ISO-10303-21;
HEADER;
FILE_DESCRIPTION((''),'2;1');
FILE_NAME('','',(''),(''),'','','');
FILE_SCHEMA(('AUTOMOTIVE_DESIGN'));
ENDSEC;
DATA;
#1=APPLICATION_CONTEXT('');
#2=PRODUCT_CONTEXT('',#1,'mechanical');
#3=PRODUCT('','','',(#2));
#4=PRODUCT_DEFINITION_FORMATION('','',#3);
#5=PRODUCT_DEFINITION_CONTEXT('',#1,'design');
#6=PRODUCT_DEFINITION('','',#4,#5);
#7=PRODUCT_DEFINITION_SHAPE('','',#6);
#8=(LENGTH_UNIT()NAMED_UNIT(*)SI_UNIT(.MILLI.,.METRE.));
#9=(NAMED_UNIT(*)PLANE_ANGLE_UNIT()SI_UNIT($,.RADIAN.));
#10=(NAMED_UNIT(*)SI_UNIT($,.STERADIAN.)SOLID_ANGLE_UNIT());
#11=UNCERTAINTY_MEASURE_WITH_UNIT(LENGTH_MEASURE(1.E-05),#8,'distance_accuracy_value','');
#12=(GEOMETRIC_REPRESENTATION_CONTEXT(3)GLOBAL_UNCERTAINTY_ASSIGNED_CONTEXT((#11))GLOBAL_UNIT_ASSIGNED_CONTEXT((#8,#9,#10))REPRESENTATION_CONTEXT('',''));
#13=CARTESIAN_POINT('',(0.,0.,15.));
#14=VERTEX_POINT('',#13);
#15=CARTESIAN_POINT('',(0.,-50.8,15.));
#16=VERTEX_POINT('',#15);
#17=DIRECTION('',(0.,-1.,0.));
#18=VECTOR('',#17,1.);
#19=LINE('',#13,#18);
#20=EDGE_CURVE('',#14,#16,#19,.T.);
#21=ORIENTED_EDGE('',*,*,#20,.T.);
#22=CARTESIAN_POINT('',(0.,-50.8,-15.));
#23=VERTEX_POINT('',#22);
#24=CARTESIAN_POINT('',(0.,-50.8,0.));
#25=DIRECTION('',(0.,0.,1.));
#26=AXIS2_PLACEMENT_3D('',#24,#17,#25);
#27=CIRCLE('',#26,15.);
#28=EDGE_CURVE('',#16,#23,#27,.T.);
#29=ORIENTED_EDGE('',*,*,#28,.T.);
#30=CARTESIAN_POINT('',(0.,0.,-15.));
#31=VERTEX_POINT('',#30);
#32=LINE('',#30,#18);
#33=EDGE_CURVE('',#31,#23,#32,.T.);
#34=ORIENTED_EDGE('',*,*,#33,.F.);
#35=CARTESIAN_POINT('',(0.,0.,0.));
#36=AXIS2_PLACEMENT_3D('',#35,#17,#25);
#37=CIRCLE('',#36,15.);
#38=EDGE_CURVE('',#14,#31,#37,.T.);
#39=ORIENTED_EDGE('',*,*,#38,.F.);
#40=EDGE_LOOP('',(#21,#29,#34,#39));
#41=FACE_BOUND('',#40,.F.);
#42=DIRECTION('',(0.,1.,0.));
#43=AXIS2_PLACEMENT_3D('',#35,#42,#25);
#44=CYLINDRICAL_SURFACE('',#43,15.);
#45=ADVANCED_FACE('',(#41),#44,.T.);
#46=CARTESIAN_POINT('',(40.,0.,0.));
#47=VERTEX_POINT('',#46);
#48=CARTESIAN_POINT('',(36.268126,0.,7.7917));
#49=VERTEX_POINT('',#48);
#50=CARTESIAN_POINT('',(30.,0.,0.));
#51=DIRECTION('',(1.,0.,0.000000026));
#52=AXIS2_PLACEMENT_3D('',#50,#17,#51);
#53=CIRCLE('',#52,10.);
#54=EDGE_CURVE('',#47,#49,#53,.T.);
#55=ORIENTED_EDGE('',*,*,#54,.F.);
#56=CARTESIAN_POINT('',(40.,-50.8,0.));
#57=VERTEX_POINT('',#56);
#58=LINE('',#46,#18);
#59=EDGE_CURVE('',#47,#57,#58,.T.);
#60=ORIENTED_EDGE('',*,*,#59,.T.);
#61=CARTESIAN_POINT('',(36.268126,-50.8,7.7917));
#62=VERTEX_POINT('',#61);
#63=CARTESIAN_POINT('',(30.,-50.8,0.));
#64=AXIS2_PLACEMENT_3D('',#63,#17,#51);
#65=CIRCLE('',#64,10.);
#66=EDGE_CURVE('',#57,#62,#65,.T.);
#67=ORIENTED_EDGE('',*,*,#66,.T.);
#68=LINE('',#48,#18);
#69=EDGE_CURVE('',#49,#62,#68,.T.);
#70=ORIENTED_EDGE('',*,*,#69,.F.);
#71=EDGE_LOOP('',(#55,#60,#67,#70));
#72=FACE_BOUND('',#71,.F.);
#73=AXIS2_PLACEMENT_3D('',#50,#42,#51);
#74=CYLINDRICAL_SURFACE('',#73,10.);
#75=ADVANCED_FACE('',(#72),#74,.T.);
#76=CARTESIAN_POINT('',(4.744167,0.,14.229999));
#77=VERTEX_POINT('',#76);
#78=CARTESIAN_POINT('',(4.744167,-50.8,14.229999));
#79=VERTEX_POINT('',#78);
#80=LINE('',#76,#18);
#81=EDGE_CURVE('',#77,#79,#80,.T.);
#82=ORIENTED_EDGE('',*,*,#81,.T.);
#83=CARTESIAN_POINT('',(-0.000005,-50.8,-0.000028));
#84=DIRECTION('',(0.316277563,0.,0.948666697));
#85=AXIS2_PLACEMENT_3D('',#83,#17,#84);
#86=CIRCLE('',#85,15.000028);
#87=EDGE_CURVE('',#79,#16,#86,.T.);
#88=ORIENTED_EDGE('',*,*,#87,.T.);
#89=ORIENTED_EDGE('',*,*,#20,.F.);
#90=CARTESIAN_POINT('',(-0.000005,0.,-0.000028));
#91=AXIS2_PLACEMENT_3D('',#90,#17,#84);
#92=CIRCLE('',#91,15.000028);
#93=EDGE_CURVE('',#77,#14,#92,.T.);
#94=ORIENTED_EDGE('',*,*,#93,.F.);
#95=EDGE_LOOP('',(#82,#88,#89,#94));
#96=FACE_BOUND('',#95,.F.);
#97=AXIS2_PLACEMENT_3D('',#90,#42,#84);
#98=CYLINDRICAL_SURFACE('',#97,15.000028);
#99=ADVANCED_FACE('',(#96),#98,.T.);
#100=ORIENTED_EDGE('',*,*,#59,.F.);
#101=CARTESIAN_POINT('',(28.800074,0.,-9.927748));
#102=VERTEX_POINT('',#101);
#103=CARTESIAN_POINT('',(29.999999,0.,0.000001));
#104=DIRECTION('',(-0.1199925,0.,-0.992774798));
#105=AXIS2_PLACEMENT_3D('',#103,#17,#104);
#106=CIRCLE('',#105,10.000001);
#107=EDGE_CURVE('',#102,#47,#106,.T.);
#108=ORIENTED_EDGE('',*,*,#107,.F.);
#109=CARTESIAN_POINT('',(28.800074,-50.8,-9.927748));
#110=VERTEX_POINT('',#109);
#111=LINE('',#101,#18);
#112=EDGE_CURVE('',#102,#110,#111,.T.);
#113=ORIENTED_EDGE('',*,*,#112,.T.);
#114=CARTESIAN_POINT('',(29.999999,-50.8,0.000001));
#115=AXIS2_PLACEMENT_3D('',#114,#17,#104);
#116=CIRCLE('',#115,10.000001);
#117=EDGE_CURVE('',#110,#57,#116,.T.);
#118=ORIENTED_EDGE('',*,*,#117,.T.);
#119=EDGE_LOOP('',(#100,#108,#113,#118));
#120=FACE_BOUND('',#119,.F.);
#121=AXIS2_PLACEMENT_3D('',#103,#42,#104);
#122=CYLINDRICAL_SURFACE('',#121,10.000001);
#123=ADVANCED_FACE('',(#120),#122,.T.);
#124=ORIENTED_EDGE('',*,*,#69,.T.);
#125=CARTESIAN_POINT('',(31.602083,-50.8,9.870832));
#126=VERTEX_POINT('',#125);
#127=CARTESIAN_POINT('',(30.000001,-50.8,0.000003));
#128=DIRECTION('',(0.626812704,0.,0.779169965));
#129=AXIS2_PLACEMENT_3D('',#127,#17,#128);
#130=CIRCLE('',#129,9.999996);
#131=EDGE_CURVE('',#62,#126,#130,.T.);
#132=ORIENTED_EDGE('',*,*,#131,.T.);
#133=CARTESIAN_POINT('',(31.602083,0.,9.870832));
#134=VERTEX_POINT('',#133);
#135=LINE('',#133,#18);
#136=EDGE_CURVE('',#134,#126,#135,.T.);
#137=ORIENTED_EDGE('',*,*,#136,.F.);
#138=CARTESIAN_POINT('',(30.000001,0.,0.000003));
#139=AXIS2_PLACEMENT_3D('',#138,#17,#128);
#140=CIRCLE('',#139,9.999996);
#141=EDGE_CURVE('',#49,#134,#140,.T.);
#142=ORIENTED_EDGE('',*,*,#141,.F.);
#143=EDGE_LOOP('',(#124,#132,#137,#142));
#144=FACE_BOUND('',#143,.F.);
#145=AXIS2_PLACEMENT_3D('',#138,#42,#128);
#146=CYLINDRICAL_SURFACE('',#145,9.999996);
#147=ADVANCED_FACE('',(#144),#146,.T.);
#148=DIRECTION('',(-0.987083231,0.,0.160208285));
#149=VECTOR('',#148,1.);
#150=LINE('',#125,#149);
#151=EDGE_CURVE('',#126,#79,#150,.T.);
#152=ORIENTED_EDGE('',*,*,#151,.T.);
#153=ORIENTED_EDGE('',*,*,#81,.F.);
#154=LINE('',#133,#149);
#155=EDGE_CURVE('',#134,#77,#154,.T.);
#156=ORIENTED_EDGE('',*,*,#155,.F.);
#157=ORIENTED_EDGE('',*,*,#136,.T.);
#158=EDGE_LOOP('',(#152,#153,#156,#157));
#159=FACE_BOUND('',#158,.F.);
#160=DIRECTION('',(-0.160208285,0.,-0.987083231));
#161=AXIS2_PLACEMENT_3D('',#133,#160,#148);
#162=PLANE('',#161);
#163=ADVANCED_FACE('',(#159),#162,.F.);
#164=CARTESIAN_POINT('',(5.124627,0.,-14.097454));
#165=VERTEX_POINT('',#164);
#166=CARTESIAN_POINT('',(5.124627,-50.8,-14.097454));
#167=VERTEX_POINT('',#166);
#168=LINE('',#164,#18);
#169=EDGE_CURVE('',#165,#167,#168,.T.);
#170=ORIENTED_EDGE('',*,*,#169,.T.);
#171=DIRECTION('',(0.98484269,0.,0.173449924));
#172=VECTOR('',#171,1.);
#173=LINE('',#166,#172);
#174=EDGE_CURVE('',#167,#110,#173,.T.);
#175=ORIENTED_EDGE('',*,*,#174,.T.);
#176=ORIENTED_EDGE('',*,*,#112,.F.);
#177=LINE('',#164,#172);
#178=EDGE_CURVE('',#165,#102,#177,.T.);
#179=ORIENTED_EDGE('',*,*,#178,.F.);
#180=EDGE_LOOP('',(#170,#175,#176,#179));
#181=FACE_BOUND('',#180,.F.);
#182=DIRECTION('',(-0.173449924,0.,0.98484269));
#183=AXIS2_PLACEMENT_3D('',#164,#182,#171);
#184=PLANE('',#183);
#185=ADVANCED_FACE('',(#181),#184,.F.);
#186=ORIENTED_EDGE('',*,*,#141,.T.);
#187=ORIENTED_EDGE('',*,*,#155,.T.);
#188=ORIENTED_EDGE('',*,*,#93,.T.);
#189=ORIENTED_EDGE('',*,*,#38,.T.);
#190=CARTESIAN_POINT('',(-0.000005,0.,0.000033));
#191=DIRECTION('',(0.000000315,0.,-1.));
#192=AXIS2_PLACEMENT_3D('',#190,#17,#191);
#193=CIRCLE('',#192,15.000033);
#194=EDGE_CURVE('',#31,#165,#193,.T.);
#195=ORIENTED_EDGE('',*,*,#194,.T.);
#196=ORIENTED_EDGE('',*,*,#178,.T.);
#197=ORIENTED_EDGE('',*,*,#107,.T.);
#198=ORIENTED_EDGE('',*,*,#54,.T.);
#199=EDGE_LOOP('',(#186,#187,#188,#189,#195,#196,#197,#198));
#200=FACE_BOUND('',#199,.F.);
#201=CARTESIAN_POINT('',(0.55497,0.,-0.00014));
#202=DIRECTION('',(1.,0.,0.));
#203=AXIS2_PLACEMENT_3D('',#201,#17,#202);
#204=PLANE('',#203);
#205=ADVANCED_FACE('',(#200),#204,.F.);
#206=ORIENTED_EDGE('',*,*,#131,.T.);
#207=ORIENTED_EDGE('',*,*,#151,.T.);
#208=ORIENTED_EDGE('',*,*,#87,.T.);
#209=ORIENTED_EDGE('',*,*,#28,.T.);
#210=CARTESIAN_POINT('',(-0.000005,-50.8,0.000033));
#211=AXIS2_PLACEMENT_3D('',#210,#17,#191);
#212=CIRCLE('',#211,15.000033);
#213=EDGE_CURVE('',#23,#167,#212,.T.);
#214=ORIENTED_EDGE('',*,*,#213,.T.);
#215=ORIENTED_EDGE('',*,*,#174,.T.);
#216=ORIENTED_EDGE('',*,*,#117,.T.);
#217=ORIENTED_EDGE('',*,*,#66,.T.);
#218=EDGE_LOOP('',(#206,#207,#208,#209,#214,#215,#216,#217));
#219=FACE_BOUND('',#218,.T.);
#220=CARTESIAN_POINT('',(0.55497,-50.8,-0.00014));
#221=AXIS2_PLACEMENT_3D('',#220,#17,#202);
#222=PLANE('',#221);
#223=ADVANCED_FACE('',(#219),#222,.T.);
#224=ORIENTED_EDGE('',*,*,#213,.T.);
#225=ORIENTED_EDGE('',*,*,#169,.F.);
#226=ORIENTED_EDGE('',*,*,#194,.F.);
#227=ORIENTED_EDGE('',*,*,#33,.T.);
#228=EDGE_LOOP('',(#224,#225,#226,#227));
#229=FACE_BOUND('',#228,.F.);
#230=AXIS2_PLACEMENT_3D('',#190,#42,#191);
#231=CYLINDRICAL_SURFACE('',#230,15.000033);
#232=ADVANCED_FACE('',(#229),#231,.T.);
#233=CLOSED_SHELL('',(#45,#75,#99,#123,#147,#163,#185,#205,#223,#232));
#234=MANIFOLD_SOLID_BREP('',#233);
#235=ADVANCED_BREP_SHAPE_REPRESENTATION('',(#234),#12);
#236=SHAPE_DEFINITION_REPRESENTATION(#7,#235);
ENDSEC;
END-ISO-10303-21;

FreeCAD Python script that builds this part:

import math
import FreeCAD as App
import Part
import Sketcher
from FreeCAD import Vector
Q = App.Units.Quantity

doc = App.newDocument("Part")
body = doc.addObject("PartDesign::Body", "Body")

# Sketch on XZ plane
sketch1 = doc.addObject("Sketcher::SketchObject", "Sketch")
body.addObject(sketch1)
sketch1.AttachmentSupport = (doc.XZ_Plane, [""])
sketch1.MapMode = "FlatFace"
sketch1.addGeometry([
    Part.ArcOfCircle(Part.Circle(Vector(0, 0, 0), Vector(0, 0, 1), 15), math.radians(90), math.radians(270)),  # 0
    Part.ArcOfCircle(Part.Circle(Vector(0, 0, 0), Vector(0, 0, 1), 15), math.radians(-90), math.radians(-70.02)),  # 1
    Part.LineSegment(Vector(5.1, -14.1, 0), Vector(28.8, -9.9, 0)),  # 2
    Part.ArcOfCircle(Part.Circle(Vector(30, 0, 0), Vector(0, 0, 1), 10), math.radians(-97), math.radians(0)),  # 3
    Part.ArcOfCircle(Part.Circle(Vector(30, 0, 0), Vector(0, 0, 1), 10), math.radians(0), math.radians(51)),  # 4
    Part.ArcOfCircle(Part.Circle(Vector(30, 0, 0), Vector(0, 0, 1), 10), math.radians(51), math.radians(81)),  # 5
    Part.LineSegment(Vector(31.6, 9.9, 0), Vector(4.7, 14.2, 0)),  # 6
    Part.ArcOfCircle(Part.Circle(Vector(0, 0, 0), Vector(0, 0, 1), 15), math.radians(71.56), math.radians(90)),  # 7
], False)
sketch1.addConstraint([
    Sketcher.Constraint("Tangent", 0, 2, 1, 1),
    Sketcher.Constraint("Coincident", 1, 2, 2, 1),
    Sketcher.Constraint("Coincident", 2, 2, 3, 1),
    Sketcher.Constraint("Tangent", 3, 2, 4, 1),
    Sketcher.Constraint("Tangent", 4, 2, 5, 1),
    Sketcher.Constraint("Tangent", 5, 2, 6, 1),
    Sketcher.Constraint("Coincident", 6, 2, 7, 1),
    Sketcher.Constraint("Tangent", 7, 2, 0, 1),
    Sketcher.Constraint("Coincident", 0, 3, -1, 1),
    Sketcher.Constraint("Coincident", 5, 3, 3, 3),
    Sketcher.Constraint("PointOnObject", 3, 3, -1),
    Sketcher.Constraint("PointOnObject", 0, 2, -2),
    Sketcher.Constraint("PointOnObject", 3, 2, -1),
    Sketcher.Constraint("PointOnObject", 7, 2, -2),
    Sketcher.Constraint("Radius", 0, Q("15 mm")),
    Sketcher.Constraint("Radius", 3, Q("10.000001 mm")),
    Sketcher.Constraint("DistanceX", -1, 1, 3, 3, Q("29.999999 mm")),
    Sketcher.Constraint("DistanceY", -1, 1, 6, 2, Q("14.229999 mm")),
    Sketcher.Constraint("Radius", 7, Q("15.000028 mm")),
    Sketcher.Constraint("Radius", 1, Q("15.000033 mm")),
    Sketcher.Constraint("DistanceY", -1, 1, 4, 2, Q("7.7917 mm")),
    Sketcher.Constraint("DistanceX", 1, 3, 1, 2, Q("5.124632 mm")),
    Sketcher.Constraint("DistanceY", 2, 2, 3, 3, Q("9.927749 mm")),
])
pad1 = doc.addObject("PartDesign::Pad", "Pad")
body.addObject(pad1)
pad1.Profile = sketch1
pad1.Length = 50.8

doc.recompute()
